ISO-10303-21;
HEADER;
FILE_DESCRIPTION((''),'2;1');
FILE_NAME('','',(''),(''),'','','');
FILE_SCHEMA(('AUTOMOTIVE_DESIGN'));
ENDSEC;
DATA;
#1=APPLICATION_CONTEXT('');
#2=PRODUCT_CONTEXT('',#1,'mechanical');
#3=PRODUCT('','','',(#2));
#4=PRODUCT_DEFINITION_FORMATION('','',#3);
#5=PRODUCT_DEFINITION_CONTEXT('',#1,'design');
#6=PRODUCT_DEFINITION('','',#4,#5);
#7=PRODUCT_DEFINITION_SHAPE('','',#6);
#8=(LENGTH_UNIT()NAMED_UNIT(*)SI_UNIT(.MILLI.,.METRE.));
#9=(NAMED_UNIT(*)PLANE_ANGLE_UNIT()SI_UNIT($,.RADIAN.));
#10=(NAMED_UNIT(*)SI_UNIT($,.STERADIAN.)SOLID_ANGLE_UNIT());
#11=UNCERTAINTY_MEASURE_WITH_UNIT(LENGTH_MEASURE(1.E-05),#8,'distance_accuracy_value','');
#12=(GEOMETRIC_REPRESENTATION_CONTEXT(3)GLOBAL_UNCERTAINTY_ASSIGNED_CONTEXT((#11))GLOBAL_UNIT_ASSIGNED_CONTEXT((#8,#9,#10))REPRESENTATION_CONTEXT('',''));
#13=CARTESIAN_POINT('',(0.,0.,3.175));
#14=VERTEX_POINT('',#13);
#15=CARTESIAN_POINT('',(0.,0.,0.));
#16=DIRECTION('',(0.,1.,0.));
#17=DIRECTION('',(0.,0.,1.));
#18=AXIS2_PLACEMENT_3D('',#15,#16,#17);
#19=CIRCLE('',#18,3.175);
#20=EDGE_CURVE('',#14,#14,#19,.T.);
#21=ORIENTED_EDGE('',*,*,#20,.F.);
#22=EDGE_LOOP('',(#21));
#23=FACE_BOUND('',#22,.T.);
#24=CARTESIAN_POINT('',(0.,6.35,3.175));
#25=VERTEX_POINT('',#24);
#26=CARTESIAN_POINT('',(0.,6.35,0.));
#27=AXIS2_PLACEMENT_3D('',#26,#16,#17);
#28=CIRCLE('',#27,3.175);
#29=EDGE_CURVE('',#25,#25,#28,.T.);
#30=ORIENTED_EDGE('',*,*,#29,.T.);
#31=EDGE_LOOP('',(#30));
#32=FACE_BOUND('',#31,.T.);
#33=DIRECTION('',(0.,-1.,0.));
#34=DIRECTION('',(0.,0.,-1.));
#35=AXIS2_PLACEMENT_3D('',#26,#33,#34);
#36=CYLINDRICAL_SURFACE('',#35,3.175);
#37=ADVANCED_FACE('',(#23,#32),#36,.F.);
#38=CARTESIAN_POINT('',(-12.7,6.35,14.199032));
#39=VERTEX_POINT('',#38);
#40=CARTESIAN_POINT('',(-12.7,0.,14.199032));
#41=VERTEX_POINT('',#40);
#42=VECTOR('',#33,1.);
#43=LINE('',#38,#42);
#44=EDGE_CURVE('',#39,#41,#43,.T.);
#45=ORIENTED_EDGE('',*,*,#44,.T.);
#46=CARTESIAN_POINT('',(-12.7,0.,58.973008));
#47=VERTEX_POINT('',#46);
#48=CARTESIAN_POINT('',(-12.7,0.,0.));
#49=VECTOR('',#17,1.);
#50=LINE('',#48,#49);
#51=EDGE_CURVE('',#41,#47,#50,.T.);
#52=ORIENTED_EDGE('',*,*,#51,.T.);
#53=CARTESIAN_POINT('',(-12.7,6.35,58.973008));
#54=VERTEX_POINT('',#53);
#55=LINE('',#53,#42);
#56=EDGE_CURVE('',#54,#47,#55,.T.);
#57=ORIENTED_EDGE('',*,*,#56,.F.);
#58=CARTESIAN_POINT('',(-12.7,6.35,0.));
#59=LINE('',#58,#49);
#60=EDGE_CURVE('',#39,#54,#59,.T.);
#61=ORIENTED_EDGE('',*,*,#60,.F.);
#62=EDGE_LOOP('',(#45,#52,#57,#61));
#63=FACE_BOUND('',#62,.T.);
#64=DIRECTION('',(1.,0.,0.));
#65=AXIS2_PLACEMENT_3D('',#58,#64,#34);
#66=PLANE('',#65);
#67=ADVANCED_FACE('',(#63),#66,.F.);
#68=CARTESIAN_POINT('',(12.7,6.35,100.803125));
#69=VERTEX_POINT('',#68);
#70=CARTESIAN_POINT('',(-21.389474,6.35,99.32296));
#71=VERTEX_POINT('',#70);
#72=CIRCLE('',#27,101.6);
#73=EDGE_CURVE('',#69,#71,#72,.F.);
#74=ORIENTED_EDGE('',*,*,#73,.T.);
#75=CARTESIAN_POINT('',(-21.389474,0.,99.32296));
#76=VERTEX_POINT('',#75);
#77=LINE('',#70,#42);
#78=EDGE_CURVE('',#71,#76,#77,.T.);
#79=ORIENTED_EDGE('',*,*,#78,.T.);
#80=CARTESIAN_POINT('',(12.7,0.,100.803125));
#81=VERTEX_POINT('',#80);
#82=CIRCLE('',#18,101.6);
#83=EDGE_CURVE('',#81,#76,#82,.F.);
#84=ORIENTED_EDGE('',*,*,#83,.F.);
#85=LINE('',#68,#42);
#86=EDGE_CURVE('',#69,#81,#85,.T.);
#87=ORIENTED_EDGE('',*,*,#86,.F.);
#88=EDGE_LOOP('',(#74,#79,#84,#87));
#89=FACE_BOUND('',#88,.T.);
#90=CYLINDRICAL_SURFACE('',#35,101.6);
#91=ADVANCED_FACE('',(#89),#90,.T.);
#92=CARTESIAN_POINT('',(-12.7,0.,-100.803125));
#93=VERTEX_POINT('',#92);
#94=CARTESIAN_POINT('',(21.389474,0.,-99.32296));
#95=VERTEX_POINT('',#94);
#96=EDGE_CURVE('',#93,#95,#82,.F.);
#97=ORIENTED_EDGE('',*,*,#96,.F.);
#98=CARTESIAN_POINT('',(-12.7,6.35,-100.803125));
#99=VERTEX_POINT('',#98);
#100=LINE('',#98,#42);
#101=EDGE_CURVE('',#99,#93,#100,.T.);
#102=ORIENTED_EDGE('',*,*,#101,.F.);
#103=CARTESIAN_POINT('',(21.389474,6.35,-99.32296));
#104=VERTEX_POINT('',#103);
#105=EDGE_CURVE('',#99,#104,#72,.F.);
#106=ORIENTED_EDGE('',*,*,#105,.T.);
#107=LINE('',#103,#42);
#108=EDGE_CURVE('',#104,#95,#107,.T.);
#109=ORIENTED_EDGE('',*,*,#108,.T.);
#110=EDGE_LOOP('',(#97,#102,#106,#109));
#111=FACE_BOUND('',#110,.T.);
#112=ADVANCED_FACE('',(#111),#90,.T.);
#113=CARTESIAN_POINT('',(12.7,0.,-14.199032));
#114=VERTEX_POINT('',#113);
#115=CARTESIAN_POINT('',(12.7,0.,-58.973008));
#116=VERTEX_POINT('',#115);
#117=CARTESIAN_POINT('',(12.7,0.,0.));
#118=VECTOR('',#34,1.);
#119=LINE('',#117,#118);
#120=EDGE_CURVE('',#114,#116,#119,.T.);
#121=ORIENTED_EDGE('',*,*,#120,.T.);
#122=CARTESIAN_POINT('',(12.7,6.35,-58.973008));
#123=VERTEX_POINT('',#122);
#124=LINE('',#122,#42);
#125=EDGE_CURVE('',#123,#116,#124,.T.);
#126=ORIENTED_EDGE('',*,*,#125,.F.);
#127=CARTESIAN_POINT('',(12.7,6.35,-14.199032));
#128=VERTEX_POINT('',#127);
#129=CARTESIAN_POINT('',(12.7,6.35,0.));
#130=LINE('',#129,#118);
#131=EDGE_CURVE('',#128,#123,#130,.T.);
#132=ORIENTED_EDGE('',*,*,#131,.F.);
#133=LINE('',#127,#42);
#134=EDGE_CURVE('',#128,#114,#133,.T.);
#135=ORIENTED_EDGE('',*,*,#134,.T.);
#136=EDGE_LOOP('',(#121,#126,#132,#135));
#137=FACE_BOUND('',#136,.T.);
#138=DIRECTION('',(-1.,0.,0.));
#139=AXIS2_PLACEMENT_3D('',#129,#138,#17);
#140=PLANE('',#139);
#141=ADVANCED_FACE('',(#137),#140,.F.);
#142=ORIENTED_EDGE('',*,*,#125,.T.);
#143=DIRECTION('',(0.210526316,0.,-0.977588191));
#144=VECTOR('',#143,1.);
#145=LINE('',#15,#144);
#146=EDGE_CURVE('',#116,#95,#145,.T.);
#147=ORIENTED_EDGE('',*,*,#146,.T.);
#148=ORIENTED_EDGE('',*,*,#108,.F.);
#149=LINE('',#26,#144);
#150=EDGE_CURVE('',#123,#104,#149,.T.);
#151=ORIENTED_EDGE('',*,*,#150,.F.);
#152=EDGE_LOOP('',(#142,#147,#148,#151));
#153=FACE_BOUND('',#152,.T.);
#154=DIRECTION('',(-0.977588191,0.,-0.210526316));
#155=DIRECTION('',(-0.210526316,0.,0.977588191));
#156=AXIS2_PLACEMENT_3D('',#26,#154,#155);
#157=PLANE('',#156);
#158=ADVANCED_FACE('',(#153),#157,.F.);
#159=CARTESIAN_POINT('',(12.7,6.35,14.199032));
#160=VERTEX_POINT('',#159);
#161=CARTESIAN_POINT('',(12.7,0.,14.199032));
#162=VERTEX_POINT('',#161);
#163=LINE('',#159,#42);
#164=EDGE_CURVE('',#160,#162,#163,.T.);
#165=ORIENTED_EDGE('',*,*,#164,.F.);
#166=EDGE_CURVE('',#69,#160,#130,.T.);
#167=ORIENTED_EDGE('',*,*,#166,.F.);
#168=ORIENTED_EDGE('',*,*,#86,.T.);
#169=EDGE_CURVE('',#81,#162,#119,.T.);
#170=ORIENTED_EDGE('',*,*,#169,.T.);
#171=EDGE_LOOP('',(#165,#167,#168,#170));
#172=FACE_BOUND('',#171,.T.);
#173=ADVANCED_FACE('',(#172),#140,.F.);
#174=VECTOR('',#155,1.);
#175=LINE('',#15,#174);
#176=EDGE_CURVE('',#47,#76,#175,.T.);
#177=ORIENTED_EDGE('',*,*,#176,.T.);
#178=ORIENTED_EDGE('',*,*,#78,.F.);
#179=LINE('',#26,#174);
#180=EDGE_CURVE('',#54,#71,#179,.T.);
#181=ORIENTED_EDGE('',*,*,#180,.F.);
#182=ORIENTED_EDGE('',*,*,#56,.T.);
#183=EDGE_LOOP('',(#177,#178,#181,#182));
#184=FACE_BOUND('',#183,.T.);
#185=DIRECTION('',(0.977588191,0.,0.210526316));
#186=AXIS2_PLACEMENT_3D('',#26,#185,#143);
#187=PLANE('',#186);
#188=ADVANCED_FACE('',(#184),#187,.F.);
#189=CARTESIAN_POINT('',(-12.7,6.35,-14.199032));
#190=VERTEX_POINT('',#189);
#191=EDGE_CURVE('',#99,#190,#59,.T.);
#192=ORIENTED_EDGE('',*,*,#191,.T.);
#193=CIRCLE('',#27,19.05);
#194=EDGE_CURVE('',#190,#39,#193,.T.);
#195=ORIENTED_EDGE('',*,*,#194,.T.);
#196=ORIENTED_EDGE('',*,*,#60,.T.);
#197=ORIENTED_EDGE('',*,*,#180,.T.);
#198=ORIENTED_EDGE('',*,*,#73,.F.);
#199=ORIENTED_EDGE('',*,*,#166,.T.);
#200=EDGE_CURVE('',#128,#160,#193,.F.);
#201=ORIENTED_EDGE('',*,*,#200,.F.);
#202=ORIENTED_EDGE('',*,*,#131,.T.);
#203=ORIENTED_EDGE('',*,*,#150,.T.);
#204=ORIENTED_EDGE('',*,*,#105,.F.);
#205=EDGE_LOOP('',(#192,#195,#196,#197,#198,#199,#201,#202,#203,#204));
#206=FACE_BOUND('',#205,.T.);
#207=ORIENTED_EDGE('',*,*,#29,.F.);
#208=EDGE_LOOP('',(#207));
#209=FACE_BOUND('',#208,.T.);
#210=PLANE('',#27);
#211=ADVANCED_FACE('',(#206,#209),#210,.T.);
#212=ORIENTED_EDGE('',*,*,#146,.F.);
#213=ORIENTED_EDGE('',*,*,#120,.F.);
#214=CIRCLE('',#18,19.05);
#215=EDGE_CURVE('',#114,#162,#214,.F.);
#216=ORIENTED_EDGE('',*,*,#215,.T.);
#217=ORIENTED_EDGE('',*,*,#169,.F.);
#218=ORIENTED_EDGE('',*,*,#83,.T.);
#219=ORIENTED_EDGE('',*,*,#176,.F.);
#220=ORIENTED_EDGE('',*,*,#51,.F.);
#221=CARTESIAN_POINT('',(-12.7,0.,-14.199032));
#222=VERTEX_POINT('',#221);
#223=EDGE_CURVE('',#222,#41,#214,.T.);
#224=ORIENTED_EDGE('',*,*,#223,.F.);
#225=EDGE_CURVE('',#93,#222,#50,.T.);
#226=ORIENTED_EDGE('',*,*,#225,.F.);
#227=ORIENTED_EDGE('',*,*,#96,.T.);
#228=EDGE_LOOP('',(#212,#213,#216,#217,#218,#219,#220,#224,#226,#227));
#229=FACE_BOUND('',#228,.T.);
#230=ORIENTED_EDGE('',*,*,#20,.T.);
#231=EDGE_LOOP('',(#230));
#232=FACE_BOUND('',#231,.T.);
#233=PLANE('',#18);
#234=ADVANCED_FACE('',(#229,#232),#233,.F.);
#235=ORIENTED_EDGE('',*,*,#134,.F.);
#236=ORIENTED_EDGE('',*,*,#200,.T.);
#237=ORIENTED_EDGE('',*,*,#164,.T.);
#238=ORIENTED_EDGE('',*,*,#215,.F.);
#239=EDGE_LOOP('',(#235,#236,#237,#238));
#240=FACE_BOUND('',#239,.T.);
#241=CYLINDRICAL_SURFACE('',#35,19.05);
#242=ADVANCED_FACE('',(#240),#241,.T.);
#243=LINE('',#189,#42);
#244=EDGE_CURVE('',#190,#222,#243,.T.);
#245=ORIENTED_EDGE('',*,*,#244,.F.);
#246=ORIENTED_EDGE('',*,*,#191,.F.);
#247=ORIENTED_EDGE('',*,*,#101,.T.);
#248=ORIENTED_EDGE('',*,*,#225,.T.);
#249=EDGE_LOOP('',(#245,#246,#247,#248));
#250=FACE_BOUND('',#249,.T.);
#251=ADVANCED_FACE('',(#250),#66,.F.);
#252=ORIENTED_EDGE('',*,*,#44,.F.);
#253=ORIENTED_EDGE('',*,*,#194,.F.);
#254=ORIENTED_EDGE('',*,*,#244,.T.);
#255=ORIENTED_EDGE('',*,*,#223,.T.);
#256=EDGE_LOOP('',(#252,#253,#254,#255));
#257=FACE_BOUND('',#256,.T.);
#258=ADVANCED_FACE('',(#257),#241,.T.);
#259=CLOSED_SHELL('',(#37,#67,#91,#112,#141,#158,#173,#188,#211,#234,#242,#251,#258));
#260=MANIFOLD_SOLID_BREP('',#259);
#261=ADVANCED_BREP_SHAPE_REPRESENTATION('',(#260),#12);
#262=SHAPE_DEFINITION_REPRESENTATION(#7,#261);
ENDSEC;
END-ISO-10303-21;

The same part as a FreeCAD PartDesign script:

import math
import FreeCAD as App
import Part
import Sketcher
Q = App.Units.Quantity

doc = App.newDocument("Part")
body = doc.addObject("PartDesign::Body", "Body")

# Sketch on XZ plane
sketch1 = body.newObject("Sketcher::SketchObject", "Sketch")
sketch1.AttachmentSupport = (doc.getObject("XZ_Plane"), [""])
sketch1.MapMode = "FlatFace"
sketch1.addGeometry(Part.ArcOfCircle(Part.Circle(App.Vector(0, 0, 0), App.Vector(0, 0, 1), 19.1), math.radians(-48), math.radians(48)), False)
sketch1.addGeometry(Part.LineSegment(App.Vector(12.7, -14.2, 0), App.Vector(12.7, -59, 0)), False)
sketch1.addGeometry(Part.LineSegment(App.Vector(12.7, -59, 0), App.Vector(21.4, -99.3, 0)), False)
sketch1.addGeometry(Part.ArcOfCircle(Part.Circle(App.Vector(0, 0, 0), App.Vector(0, 0, 1), 101.6), math.radians(-97.18), math.radians(-77.85)), False)
sketch1.addGeometry(Part.LineSegment(App.Vector(-12.7, -100.8, 0), App.Vector(-12.7, -14.2, 0)), False)
sketch1.addGeometry(Part.ArcOfCircle(Part.Circle(App.Vector(0, 0, 0), App.Vector(0, 0, 1), 19.1), math.radians(132), math.radians(228)), False)
sketch1.addGeometry(Part.LineSegment(App.Vector(-12.7, 14.2, 0), App.Vector(-12.7, 59, 0)), False)
sketch1.addGeometry(Part.LineSegment(App.Vector(-12.7, 59, 0), App.Vector(-21.4, 99.3, 0)), False)
sketch1.addGeometry(Part.ArcOfCircle(Part.Circle(App.Vector(0, 0, 0), App.Vector(0, 0, 1), 101.6), math.radians(82.82), math.radians(102.15)), False)
sketch1.addGeometry(Part.LineSegment(App.Vector(12.7, 100.8, 0), App.Vector(12.7, 14.2, 0)), False)
sketch1.addGeometry(Part.Circle(App.Vector(0, 0, 0), App.Vector(0, 0, 1), 3.2), False)
sketch1.addConstraint(Sketcher.Constraint("Coincident", 0, 1, 1, 1))
sketch1.addConstraint(Sketcher.Constraint("Coincident", 1, 2, 2, 1))
sketch1.addConstraint(Sketcher.Constraint("Coincident", 2, 2, 3, 2))
sketch1.addConstraint(Sketcher.Constraint("Coincident", 3, 1, 4, 1))
sketch1.addConstraint(Sketcher.Constraint("Coincident", 4, 2, 5, 2))
sketch1.addConstraint(Sketcher.Constraint("Coincident", 5, 1, 6, 1))
sketch1.addConstraint(Sketcher.Constraint("Coincident", 6, 2, 7, 1))
sketch1.addConstraint(Sketcher.Constraint("Coincident", 7, 2, 8, 2))
sketch1.addConstraint(Sketcher.Constraint("Coincident", 8, 1, 9, 1))
sketch1.addConstraint(Sketcher.Constraint("Coincident", 9, 2, 0, 2))
sketch1.addConstraint(Sketcher.Constraint("Vertical", 1))
sketch1.addConstraint(Sketcher.Constraint("Vertical", 4))
sketch1.addConstraint(Sketcher.Constraint("Vertical", 6))
sketch1.addConstraint(Sketcher.Constraint("Vertical", 9))
sketch1.addConstraint(Sketcher.Constraint("Coincident", 0, 3, -1, 1))
sketch1.addConstraint(Sketcher.Constraint("Coincident", 3, 3, -1, 1))
sketch1.addConstraint(Sketcher.Constraint("Coincident", 5, 3, -1, 1))
sketch1.addConstraint(Sketcher.Constraint("Coincident", 8, 3, -1, 1))
sketch1.addConstraint(Sketcher.Constraint("Coincident", 10, 3, -1, 1))
sketch1.addConstraint(Sketcher.Constraint("Equal", 0, 5))
sketch1.addConstraint(Sketcher.Constraint("Equal", 3, 8))
sketch1.addConstraint(Sketcher.Constraint("Symmetric", 1, 2, 6, 2, -1, 1))
sketch1.addConstraint(Sketcher.Constraint("Parallel", 2, 7))
sketch1.addConstraint(Sketcher.Constraint("Horizontal", 0, 1, 4, 2))
sketch1.addConstraint(Sketcher.Constraint("Horizontal", 5, 1, 9, 2))
sketch1.addConstraint(Sketcher.Constraint("Radius", 3, Q("4 in")))
sketch1.addConstraint(Sketcher.Constraint("Diameter", 10, Q("0.25 in")))
sketch1.addConstraint(Sketcher.Constraint("Radius", 0, Q("0.75 in")))
sketch1.addConstraint(Sketcher.Constraint("DistanceX", 3, 1, 1, 2, Q("1 in")))
sketch1.addConstraint(Sketcher.Constraint("Distance", 2, Q("1.625 in")))
sketch1.addConstraint(Sketcher.Constraint("DistanceY", 2, 2, -1, 1, Q("99.32296 mm")))
pad1 = body.newObject("PartDesign::Pad", "Pad")
pad1.Profile = sketch1
pad1.Length = Q("0.25 in")
pad1.Reversed = True

doc.recompute()
